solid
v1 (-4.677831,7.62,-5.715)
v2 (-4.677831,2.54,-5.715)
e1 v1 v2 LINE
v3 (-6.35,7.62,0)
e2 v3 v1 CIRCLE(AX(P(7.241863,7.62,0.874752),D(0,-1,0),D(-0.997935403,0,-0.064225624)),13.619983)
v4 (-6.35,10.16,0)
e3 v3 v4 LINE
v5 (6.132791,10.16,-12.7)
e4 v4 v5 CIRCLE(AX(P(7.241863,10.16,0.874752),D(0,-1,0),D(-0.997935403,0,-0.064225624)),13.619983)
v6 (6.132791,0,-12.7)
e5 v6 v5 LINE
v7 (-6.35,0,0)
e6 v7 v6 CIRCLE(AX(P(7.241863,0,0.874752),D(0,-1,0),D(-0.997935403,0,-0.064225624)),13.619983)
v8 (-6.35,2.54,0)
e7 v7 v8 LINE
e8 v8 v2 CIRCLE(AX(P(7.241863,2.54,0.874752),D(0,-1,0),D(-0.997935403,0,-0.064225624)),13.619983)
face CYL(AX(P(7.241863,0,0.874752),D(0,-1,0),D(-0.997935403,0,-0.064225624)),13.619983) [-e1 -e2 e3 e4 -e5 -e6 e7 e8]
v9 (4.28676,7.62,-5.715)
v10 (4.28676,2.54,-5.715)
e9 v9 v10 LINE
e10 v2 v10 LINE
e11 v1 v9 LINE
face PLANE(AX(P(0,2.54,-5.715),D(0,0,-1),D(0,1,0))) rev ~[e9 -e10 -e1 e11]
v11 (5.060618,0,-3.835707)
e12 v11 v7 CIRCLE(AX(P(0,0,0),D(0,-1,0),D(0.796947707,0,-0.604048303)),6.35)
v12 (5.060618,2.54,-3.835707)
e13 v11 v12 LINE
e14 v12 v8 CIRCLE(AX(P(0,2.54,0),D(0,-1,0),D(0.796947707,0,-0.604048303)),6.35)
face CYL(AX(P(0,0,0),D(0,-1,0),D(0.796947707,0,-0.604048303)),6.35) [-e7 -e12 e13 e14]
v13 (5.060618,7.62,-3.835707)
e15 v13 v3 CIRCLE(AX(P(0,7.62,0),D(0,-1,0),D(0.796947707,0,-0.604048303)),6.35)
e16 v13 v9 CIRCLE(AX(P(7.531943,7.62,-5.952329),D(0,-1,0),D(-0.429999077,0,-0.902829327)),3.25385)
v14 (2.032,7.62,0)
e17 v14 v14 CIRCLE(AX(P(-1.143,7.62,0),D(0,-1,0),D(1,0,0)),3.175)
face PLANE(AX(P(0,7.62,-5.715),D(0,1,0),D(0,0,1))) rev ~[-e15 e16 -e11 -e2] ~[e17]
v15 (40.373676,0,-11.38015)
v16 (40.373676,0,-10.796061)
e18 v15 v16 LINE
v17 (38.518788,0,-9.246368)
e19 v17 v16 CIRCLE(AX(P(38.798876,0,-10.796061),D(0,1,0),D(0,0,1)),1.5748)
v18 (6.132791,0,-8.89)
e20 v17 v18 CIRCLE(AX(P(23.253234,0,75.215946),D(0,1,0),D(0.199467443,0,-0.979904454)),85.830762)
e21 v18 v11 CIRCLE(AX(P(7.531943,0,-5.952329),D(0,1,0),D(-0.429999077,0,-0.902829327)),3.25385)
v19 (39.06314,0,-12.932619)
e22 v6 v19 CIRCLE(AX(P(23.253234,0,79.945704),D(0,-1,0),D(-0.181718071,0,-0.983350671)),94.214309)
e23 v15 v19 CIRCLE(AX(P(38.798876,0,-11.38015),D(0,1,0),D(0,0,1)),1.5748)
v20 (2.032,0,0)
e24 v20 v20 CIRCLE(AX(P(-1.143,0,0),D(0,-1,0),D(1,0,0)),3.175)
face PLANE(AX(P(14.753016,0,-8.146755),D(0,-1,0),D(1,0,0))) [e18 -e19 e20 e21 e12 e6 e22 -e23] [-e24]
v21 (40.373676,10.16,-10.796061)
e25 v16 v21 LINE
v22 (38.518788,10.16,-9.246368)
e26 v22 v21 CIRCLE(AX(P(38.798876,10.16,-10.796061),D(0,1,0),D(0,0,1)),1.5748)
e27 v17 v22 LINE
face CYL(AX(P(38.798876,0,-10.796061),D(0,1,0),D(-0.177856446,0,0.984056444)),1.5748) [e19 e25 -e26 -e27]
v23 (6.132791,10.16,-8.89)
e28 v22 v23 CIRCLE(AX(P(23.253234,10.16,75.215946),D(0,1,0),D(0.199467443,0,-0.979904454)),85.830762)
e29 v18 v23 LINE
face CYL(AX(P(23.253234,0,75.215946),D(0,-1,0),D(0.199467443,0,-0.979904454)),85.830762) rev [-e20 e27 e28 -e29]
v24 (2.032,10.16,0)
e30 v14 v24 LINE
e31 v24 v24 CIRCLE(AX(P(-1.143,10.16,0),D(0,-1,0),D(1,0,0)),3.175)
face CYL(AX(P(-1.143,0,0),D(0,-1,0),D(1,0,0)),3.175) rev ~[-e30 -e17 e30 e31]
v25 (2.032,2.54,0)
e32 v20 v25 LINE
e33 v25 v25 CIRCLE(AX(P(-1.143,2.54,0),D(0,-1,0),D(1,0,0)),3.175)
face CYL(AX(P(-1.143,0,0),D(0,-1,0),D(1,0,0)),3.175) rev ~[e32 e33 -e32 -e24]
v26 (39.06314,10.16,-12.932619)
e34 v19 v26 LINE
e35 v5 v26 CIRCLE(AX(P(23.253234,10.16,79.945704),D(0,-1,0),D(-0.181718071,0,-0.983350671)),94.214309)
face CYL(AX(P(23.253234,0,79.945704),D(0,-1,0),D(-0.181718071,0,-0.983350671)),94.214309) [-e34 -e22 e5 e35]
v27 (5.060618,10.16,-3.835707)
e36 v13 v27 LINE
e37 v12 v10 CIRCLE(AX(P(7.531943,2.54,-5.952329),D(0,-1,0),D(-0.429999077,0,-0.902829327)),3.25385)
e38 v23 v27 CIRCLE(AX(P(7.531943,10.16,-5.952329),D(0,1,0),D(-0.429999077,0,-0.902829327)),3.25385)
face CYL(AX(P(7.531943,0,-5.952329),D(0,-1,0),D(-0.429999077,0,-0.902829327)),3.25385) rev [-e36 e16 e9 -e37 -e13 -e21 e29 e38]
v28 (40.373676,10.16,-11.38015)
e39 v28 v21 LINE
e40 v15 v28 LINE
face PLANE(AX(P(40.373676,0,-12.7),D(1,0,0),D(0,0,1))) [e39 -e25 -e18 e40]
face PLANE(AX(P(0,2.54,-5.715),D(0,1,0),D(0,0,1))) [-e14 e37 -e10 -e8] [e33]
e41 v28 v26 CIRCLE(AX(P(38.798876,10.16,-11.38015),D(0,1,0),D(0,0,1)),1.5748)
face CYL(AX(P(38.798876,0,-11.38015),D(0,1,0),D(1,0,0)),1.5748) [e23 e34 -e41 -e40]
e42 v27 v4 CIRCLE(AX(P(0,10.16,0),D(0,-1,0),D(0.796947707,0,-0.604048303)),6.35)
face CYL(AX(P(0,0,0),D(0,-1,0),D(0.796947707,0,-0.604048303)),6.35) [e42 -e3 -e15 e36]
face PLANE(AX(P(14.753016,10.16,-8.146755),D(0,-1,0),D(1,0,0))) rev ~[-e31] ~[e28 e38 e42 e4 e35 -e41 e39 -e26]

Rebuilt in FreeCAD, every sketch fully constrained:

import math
import FreeCAD as App
import Part
import Sketcher
Q = App.Units.Quantity


def edges_at(feature, points):
    """Names of the edges that pass closest to the given points."""
    edges = feature.Shape.Edges
    near = lambda p: min(range(len(edges)), key=lambda i: edges[i].distToShape(Part.Vertex(*p))[0])
    return sorted({f"Edge{near(p) + 1}" for p in points})


def add_polygon(sketch, points):
    """Adds a closed chain of lines whose ends are joined by coincident constraints."""
    first, n = sketch.GeometryCount, len(points)
    for a, b in zip(points, points[1:] + points[:1]):
        sketch.addGeometry(Part.LineSegment(App.Vector(*a, 0), App.Vector(*b, 0)), False)
    for i in range(n):
        sketch.addConstraint(Sketcher.Constraint("Coincident", first + i, 2, first + (i + 1) % n, 1))

doc = App.newDocument("Part")
body = doc.addObject("PartDesign::Body", "Body")

sketch1 = body.newObject("Sketcher::SketchObject", "Sketch")
sketch1.AttachmentSupport = (doc.getObject("XZ_Plane"), [""])
sketch1.MapMode = "FlatFace"
sketch1.addGeometry([
    Part.ArcOfCircle(Part.Circle(App.Vector(7.5, -6, 0), App.Vector(0, 0, 1), 3.3), math.radians(139), math.radians(245)),
    Part.ArcOfCircle(Part.Circle(App.Vector(0, 0, 0), App.Vector(0, 0, 1), 6.4), math.radians(-37), math.radians(180)),
    Part.ArcOfCircle(Part.Circle(App.Vector(7.2, 0.9, 0), App.Vector(0, 0, 1), 13.6), math.radians(-176), math.radians(-95)),
    Part.ArcOfCircle(Part.Circle(App.Vector(23.3, 79.9, 0), App.Vector(0, 0, 1), 94.2), math.radians(-100), math.radians(-80)),
    Part.LineSegment(App.Vector(40.4, -12.7, 0), App.Vector(40.4, -8.9, 0)),
    Part.ArcOfCircle(Part.Circle(App.Vector(23.3, 75.2, 0), App.Vector(0, 0, 1), 85.8), math.radians(-102), math.radians(-78)),
    Part.Circle(App.Vector(-1.1, 0, 0), App.Vector(0, 0, 1), 3.2),
], False)
sketch1.addConstraint([
    Sketcher.Constraint("Coincident", 0, 1, 1, 1),
    Sketcher.Constraint("Coincident", 1, 2, 2, 1),
    Sketcher.Constraint("Coincident", 2, 2, 3, 1),
    Sketcher.Constraint("Coincident", 3, 2, 4, 1),
    Sketcher.Constraint("Coincident", 4, 2, 5, 2),
    Sketcher.Constraint("Coincident", 5, 1, 0, 2),
    Sketcher.Constraint("Vertical", 4),
    Sketcher.Constraint("Coincident", 1, 3, -1, 1),
    Sketcher.Constraint("PointOnObject", 6, 3, -1),
    Sketcher.Constraint("PointOnObject", 1, 2, -1),
    Sketcher.Constraint("Horizontal", 2, 2, 3, 2),
    Sketcher.Constraint("Horizontal", 4, 2, 5, 1),
    Sketcher.Constraint("Vertical", 3, 3, 5, 3),
    Sketcher.Constraint("Diameter", 6, Q("0.25 in")),
    Sketcher.Constraint("Radius", 1, Q("0.25 in")),
    Sketcher.Constraint("DistanceY", 4, 1, 4, 2, Q("0.15 in")),
    Sketcher.Constraint("DistanceY", 2, 2, -1, 1, Q("0.5 in")),
    Sketcher.Constraint("DistanceX", 6, 3, -1, 1, Q("0.045 in")),
    Sketcher.Constraint("Radius", 0, Q("3.25385 mm")),
    Sketcher.Constraint("Radius", 3, Q("94.214309 mm")),
    Sketcher.Constraint("Radius", 5, Q("85.830762 mm")),
    Sketcher.Constraint("Radius", 2, Q("13.619983 mm")),
    Sketcher.Constraint("DistanceY", 0, 3, -1, 1, Q("5.952329 mm")),
    Sketcher.Constraint("DistanceY", -1, 1, 2, 3, Q("0.874752 mm")),
    Sketcher.Constraint("DistanceX", 2, 3, 3, 3, Q("16.011371 mm")),
])
pad1 = body.newObject("PartDesign::Pad", "Pad")
pad1.Profile = sketch1
pad1.Length = Q("0.4 in")
pad1.Reversed = True

sketch2 = body.newObject("Sketcher::SketchObject", "Sketch001")
sketch2.AttachmentSupport = (doc.getObject("YZ_Plane"), [""])
sketch2.MapMode = "FlatFace"
add_polygon(sketch2, [(3, 8), (3, -6), (8, -6), (8, 8)])
sketch2.addConstraint([
    Sketcher.Constraint("Vertical", 0),
    Sketcher.Constraint("Horizontal", 1),
    Sketcher.Constraint("Vertical", 2),
    Sketcher.Constraint("Horizontal", 3),
    Sketcher.Constraint("DistanceX", 1, 1, 1, 2, Q("0.2 in")),
    Sketcher.Constraint("DistanceX", -1, 1, 0, 2, Q("0.1 in")),
    Sketcher.Constraint("DistanceY", -1, 1, 2, 2, Q("0.3 in")),
    Sketcher.Constraint("DistanceY", 0, 2, 0, 1, Q("0.525 in")),
])
pocket1 = body.newObject("PartDesign::Pocket", "Pocket")
pocket1.Profile = sketch2
pocket1.Length = Q("1 in")
pocket1.Midplane = True
doc.recompute()

fillet = body.newObject("PartDesign::Fillet", "Fillet")
fillet.Base = (pocket1, edges_at(pocket1, [(40.374, 5.08, -8.89), (40.374, 5.08, -12.7)]))
fillet.Radius = Q("0.062 in")

doc.recompute()
